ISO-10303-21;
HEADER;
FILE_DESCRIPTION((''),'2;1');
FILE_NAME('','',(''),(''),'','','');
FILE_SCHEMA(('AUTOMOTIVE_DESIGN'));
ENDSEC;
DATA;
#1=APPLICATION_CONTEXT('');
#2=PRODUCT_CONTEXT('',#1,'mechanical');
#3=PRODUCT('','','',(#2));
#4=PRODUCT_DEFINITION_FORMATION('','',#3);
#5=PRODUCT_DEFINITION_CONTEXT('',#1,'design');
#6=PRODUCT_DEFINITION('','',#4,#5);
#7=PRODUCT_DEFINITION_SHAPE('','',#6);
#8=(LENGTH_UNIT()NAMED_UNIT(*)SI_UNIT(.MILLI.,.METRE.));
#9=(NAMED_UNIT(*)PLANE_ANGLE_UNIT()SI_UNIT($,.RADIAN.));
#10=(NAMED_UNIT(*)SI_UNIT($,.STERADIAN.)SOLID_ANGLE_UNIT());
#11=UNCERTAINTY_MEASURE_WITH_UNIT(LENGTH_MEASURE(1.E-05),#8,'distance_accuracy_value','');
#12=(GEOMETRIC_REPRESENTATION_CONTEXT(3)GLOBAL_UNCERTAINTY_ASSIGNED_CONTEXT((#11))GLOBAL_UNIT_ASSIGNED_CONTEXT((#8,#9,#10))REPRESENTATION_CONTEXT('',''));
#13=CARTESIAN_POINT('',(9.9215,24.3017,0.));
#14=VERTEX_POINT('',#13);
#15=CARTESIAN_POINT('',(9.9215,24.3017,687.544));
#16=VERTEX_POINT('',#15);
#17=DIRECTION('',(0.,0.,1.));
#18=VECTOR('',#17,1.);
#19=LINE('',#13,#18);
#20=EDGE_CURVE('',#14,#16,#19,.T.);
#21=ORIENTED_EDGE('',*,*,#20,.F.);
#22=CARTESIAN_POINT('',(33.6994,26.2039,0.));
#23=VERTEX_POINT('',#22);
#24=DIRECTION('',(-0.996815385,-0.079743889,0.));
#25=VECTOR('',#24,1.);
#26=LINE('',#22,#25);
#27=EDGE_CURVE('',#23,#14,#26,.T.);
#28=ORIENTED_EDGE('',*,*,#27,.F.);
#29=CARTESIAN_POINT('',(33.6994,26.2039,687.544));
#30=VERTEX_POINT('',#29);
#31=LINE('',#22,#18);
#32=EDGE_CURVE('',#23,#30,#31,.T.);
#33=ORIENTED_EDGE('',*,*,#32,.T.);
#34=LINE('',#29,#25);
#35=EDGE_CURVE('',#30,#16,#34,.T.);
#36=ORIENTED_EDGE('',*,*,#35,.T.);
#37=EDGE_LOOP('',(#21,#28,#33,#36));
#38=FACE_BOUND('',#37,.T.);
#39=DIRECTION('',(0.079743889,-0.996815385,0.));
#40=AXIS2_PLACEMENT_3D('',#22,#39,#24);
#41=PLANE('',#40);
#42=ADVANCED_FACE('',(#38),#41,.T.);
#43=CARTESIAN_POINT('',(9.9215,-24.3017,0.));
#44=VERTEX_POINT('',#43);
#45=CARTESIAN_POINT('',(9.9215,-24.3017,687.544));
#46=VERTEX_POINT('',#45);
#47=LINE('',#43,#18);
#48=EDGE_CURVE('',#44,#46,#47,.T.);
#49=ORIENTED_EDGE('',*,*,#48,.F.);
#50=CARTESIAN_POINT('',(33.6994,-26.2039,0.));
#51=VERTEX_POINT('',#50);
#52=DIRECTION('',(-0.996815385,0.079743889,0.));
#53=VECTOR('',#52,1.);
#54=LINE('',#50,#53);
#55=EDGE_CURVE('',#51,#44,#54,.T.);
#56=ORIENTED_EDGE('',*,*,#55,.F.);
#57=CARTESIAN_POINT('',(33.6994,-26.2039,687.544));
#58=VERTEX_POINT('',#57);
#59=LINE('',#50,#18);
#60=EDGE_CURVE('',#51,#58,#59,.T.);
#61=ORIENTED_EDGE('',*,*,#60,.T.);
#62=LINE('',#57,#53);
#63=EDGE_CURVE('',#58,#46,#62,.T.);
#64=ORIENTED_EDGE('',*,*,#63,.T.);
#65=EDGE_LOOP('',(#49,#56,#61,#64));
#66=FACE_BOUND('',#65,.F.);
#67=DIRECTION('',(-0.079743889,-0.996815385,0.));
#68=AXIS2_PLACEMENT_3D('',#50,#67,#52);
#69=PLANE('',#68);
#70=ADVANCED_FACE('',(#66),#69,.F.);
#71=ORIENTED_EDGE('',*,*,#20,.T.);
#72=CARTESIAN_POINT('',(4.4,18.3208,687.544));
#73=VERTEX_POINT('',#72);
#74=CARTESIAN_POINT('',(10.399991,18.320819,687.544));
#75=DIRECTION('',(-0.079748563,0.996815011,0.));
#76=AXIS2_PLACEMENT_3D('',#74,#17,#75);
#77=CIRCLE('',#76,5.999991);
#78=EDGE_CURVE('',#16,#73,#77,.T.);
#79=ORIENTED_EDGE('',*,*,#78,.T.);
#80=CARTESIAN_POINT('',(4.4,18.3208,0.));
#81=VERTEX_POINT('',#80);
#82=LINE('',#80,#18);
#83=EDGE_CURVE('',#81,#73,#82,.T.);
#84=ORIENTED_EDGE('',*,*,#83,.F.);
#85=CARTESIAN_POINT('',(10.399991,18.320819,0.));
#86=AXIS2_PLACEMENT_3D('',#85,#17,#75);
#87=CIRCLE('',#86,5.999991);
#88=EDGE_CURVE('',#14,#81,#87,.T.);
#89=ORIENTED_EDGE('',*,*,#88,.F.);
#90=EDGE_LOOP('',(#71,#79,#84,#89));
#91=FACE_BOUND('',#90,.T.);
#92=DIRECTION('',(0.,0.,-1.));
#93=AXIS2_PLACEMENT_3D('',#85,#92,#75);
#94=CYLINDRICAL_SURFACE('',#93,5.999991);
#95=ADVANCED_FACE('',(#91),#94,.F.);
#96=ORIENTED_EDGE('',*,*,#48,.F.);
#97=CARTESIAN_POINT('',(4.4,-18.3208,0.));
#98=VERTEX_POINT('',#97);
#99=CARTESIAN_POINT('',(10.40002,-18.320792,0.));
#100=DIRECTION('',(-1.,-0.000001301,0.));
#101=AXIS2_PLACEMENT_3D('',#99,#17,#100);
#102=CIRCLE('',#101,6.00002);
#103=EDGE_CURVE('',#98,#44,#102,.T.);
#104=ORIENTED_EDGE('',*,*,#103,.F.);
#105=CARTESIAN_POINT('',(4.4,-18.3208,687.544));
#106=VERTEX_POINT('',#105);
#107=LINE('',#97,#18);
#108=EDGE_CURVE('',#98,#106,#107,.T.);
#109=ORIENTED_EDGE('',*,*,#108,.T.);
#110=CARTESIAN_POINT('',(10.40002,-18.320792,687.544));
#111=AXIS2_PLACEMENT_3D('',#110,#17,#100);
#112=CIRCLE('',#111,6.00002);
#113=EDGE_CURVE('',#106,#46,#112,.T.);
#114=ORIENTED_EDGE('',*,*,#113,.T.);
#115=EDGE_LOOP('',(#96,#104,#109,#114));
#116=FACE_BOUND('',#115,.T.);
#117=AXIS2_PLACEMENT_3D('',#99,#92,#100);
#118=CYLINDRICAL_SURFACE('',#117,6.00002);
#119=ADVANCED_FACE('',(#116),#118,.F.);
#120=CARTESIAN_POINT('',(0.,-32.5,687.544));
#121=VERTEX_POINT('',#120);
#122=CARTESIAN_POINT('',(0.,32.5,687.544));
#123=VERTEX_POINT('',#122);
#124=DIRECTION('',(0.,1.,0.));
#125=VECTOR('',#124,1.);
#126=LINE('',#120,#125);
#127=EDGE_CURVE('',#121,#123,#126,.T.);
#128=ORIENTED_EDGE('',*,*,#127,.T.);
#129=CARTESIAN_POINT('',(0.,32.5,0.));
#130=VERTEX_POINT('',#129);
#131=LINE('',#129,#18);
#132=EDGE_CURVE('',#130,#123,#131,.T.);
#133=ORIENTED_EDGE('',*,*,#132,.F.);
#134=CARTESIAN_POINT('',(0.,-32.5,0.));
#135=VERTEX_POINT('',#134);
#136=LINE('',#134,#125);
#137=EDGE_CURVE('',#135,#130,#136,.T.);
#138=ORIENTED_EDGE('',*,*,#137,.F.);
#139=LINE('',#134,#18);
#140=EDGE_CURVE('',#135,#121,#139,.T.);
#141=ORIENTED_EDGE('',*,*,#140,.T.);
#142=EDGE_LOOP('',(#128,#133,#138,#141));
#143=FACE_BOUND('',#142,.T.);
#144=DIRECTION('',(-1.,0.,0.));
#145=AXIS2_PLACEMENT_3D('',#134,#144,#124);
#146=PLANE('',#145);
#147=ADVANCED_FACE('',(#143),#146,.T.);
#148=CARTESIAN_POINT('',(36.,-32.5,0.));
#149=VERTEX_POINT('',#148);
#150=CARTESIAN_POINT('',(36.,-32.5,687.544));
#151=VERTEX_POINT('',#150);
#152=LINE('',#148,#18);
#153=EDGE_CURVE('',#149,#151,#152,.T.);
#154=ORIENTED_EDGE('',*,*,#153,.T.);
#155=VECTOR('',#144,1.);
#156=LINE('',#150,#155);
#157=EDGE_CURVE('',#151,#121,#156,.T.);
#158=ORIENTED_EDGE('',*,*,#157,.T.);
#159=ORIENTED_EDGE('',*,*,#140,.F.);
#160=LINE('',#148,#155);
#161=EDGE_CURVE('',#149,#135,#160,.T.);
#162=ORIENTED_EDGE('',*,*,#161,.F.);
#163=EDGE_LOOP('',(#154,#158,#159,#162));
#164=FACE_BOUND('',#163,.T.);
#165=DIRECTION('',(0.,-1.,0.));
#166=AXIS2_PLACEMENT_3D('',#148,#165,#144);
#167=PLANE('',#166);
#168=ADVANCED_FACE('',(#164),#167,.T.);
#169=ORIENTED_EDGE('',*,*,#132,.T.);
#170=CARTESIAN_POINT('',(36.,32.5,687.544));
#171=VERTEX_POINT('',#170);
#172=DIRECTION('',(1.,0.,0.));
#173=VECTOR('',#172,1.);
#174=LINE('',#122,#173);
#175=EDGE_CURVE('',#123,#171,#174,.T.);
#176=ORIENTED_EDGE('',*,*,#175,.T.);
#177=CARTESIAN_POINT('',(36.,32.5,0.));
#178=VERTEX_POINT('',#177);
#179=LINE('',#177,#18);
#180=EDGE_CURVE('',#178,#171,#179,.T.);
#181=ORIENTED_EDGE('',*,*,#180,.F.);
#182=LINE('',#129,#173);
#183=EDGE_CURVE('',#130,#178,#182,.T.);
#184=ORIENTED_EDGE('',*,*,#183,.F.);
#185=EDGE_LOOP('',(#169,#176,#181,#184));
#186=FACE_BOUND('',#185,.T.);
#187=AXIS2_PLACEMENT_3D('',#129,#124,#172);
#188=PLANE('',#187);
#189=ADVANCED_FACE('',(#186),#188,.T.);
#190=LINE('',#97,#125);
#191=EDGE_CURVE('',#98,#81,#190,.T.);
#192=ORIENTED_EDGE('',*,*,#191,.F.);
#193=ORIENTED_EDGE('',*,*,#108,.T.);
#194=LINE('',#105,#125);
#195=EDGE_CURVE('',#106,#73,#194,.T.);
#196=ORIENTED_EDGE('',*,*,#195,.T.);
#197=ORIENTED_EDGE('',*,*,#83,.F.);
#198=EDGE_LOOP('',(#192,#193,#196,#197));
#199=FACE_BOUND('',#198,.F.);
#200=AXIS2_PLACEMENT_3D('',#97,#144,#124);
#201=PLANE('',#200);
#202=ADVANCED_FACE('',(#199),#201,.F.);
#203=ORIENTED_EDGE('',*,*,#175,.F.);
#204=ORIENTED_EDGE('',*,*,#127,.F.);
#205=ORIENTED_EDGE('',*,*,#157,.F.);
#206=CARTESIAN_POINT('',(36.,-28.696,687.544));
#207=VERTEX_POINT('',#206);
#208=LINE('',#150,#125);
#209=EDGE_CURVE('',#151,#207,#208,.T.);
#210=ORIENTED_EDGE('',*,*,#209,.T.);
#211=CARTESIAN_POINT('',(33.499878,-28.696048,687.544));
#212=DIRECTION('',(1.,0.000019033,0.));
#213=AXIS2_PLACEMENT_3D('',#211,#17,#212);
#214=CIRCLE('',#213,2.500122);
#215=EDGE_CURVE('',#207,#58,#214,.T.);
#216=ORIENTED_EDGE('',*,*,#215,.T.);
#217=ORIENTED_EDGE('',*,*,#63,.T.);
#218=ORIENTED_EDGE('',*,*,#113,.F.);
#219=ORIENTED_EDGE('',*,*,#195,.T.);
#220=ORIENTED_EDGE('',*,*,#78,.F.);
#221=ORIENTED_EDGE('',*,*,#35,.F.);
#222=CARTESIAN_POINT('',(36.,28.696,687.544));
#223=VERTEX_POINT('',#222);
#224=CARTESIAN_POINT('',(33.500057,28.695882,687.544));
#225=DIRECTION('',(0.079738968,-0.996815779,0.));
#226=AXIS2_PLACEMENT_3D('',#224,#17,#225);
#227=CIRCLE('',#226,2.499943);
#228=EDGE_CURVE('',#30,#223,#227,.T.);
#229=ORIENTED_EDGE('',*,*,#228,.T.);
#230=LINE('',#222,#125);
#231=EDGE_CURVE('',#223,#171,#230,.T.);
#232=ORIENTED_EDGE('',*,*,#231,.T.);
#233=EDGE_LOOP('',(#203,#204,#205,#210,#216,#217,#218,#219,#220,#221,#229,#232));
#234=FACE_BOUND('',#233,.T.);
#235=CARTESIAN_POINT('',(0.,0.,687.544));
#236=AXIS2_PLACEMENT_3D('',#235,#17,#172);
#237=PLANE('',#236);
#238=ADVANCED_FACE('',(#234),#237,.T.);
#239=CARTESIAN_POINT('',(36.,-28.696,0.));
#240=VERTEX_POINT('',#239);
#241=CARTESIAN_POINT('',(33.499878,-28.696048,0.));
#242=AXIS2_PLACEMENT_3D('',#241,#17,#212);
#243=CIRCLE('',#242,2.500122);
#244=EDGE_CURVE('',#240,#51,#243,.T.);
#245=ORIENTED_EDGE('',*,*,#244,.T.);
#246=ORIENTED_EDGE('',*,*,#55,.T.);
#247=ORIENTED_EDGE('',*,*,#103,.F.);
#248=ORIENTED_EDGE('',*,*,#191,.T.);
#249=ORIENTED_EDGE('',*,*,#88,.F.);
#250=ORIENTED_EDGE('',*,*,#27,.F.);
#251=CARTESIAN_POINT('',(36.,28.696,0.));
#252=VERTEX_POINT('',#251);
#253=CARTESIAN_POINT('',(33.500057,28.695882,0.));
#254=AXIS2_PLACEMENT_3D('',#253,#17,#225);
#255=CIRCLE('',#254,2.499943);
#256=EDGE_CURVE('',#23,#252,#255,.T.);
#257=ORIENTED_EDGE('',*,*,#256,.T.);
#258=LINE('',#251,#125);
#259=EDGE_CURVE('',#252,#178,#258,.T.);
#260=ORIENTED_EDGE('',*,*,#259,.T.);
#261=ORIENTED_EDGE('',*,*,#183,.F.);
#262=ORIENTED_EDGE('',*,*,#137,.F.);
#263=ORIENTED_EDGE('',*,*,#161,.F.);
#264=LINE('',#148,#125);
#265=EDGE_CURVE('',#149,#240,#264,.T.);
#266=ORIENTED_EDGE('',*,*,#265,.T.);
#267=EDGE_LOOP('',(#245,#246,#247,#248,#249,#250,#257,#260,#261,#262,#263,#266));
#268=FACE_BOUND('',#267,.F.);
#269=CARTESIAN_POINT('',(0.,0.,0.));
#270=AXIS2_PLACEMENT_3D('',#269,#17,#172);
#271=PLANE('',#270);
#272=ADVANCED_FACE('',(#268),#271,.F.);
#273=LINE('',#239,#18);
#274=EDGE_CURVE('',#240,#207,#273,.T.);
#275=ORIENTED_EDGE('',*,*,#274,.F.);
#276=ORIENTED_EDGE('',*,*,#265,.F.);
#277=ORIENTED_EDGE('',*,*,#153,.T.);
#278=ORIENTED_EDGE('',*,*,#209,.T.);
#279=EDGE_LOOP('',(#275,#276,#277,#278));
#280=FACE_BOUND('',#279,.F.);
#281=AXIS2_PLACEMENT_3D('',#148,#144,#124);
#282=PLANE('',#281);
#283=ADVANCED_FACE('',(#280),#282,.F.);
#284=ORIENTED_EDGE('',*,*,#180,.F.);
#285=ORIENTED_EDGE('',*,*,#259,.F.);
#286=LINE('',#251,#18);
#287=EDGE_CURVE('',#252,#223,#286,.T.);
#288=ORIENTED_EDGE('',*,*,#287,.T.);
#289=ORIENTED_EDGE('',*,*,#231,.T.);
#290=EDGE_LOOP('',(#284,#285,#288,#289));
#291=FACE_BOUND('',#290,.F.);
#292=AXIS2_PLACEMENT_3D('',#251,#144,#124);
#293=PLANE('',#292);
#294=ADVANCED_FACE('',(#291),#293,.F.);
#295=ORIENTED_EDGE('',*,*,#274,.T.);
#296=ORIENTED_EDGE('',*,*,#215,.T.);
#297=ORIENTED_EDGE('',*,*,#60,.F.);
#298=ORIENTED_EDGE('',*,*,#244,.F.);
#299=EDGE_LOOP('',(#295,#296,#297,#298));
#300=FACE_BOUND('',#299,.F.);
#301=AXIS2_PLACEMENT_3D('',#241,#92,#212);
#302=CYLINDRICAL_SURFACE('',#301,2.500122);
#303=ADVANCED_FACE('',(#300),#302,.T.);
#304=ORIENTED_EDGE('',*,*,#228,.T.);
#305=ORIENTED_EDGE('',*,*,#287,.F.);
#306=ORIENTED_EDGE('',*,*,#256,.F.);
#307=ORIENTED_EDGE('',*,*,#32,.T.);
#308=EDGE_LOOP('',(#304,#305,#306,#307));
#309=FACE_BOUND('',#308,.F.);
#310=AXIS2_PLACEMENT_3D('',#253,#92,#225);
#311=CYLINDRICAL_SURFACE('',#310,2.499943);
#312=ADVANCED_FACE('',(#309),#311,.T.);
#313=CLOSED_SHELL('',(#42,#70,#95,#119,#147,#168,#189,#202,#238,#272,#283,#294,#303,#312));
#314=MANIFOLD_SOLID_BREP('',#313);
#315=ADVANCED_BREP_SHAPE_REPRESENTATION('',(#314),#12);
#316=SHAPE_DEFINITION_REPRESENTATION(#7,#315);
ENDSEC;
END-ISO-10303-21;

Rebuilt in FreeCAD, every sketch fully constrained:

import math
import FreeCAD as App
import Part
import Sketcher

V = App.Vector

doc = App.newDocument("Part")
body = doc.addObject("PartDesign::Body", "Body")

# Sketch on XY plane
sketch1 = doc.addObject("Sketcher::SketchObject", "Sketch")
body.addObject(sketch1)
sketch1.AttachmentSupport = (doc.XY_Plane, [""])
sketch1.MapMode = "FlatFace"
sketch1.addGeometry(Part.LineSegment(V(0, -32.5, 0), V(36, -32.5, 0)), False)
sketch1.addGeometry(Part.LineSegment(V(36, -32.5, 0), V(36, -28.696, 0)), False)
sketch1.addGeometry(Part.ArcOfCircle(Part.Circle(V(33.5, -28.696, 0), V(0, 0, 1), 2.5), math.radians(0), math.radians(85.425348)), False)
sketch1.addGeometry(Part.LineSegment(V(33.6994, -26.2039, 0), V(9.9215, -24.3017, 0)), False)
sketch1.addGeometry(Part.ArcOfCircle(Part.Circle(V(10.4, -18.3208, 0), V(0, 0, 1), 6), math.radians(180), math.radians(265.425812)), False)
sketch1.addGeometry(Part.LineSegment(V(4.4, -18.3208, 0), V(4.4, 18.3208, 0)), False)
sketch1.addGeometry(Part.ArcOfCircle(Part.Circle(V(10.4, 18.3208, 0), V(0, 0, 1), 6.000011), math.radians(94.574188), math.radians(180)), False)
sketch1.addGeometry(Part.LineSegment(V(9.9215, 24.3017, 0), V(33.6994, 26.2039, 0)), False)
sketch1.addGeometry(Part.ArcOfCircle(Part.Circle(V(33.5, 28.696, 0), V(0, 0, 1), 2.500065), math.radians(-85.425348), math.radians(0)), False)
sketch1.addGeometry(Part.LineSegment(V(36, 28.696, 0), V(36, 32.5, 0)), False)
sketch1.addGeometry(Part.LineSegment(V(36, 32.5, 0), V(0, 32.5, 0)), False)
sketch1.addGeometry(Part.LineSegment(V(0, 32.5, 0), V(0, -32.5, 0)), False)
sketch1.addConstraint(Sketcher.Constraint("Coincident", 0, 2, 1, 1))
sketch1.addConstraint(Sketcher.Constraint("Tangent", 1, 2, 2, 1))
sketch1.addConstraint(Sketcher.Constraint("Tangent", 2, 2, 3, 1))
sketch1.addConstraint(Sketcher.Constraint("Tangent", 3, 2, 4, 2))
sketch1.addConstraint(Sketcher.Constraint("Tangent", 4, 1, 5, 1))
sketch1.addConstraint(Sketcher.Constraint("Tangent", 5, 2, 6, 2))
sketch1.addConstraint(Sketcher.Constraint("Tangent", 6, 1, 7, 1))
sketch1.addConstraint(Sketcher.Constraint("Tangent", 7, 2, 8, 1))
sketch1.addConstraint(Sketcher.Constraint("Tangent", 8, 2, 9, 1))
sketch1.addConstraint(Sketcher.Constraint("Coincident", 9, 2, 10, 1))
sketch1.addConstraint(Sketcher.Constraint("Coincident", 10, 2, 11, 1))
sketch1.addConstraint(Sketcher.Constraint("Coincident", 11, 2, 0, 1))
sketch1.addConstraint(Sketcher.Constraint("Horizontal", 0))
sketch1.addConstraint(Sketcher.Constraint("Vertical", 1))
sketch1.addConstraint(Sketcher.Constraint("Vertical", 5))
sketch1.addConstraint(Sketcher.Constraint("Vertical", 9))
sketch1.addConstraint(Sketcher.Constraint("Horizontal", 10))
sketch1.addConstraint(Sketcher.Constraint("Vertical", 11))
sketch1.addConstraint(Sketcher.Constraint("Equal", 4, 6))
sketch1.addConstraint(Sketcher.Constraint("Equal", 2, 8))
sketch1.addConstraint(Sketcher.Constraint("Symmetric", 10, 2, 11, 2, -1, 1))
sketch1.addConstraint(Sketcher.Constraint("Symmetric", 2, 3, 8, 3, -1))
sketch1.addConstraint(Sketcher.Constraint("Vertical", 3, 2, 6, 1))
sketch1.addConstraint(Sketcher.Constraint("Radius", 4, 6.0))
sketch1.addConstraint(Sketcher.Constraint("Radius", 2, 2.5))
sketch1.addConstraint(Sketcher.Constraint("DistanceX", 0, 1, 0, 2, 36.0))
sketch1.addConstraint(Sketcher.Constraint("DistanceY", 11, 2, 11, 1, 65.0))
sketch1.addConstraint(Sketcher.Constraint("DistanceX", -1, 1, 4, 1, 4.4))
sketch1.addConstraint(Sketcher.Constraint("DistanceY", 1, 1, 1, 2, 3.804))
sketch1.addConstraint(Sketcher.Constraint("DistanceY", 5, 1, 5, 2, 36.6416))
pad1 = doc.addObject("PartDesign::Pad", "Pad")
body.addObject(pad1)
pad1.Profile = sketch1
pad1.Length = 687.544

doc.recompute()
